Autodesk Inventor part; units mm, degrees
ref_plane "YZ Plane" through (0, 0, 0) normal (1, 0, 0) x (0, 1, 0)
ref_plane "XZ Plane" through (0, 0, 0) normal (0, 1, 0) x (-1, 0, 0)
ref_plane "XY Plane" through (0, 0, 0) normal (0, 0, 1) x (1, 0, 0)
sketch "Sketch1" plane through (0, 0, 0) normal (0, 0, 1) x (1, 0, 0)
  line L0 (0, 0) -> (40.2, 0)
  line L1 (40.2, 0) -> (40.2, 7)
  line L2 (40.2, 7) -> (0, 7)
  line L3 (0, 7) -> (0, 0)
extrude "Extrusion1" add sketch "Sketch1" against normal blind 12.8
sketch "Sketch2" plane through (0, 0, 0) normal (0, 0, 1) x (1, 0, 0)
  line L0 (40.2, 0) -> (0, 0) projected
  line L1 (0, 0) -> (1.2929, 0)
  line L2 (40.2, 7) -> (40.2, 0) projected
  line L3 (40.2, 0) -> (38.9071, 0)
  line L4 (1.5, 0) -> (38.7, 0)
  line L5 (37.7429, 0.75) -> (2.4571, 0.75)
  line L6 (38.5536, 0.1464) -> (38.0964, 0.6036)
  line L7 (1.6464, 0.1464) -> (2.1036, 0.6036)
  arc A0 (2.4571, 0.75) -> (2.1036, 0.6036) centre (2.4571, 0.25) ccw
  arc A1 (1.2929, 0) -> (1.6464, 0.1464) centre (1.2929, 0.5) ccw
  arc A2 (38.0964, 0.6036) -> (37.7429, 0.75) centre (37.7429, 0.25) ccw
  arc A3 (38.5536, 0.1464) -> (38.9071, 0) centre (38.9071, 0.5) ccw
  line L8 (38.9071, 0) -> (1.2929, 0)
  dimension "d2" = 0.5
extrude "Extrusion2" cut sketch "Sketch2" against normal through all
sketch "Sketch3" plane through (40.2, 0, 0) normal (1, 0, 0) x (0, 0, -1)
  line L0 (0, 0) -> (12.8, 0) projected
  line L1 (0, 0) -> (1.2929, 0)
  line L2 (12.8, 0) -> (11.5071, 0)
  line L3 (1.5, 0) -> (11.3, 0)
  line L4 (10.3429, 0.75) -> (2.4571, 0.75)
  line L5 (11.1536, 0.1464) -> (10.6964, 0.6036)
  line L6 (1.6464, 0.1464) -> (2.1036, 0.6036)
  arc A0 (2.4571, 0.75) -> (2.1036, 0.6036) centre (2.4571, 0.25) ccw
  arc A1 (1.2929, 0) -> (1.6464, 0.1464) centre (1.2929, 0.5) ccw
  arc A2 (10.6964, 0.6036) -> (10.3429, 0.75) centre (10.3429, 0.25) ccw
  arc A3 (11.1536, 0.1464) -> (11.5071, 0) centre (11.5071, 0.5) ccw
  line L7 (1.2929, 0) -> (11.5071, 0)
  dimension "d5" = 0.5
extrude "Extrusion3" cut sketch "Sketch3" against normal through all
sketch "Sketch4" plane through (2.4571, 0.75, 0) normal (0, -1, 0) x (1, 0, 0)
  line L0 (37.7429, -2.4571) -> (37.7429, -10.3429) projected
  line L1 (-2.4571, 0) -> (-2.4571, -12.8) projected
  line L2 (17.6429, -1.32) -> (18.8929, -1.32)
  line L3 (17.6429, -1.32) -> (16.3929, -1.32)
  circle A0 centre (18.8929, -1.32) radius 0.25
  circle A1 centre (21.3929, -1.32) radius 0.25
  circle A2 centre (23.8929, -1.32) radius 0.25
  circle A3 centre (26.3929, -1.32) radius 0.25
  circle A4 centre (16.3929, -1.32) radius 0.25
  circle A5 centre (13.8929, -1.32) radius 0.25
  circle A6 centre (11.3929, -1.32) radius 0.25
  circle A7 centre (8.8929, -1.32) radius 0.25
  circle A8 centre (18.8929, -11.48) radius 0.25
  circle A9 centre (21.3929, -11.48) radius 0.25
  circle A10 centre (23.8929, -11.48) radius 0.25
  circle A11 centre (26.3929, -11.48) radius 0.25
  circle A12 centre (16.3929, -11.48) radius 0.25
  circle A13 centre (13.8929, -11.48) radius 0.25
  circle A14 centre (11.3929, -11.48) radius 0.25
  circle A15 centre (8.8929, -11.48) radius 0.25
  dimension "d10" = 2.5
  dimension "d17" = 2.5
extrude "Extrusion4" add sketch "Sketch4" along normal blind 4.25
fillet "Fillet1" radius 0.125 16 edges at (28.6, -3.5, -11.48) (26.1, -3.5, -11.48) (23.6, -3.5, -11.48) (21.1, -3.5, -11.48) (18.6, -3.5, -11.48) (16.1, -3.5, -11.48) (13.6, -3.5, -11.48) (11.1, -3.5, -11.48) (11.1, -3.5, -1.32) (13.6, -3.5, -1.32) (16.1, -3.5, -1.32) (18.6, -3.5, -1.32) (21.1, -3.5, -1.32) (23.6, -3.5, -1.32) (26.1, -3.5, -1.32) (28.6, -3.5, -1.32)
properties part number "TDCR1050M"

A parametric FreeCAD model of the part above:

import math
import FreeCAD as App
import Part
import Sketcher
from FreeCAD import Vector
Q = App.Units.Quantity


def edges_at(feature, points):
    """Names of the edges that pass closest to the given points."""
    edges = feature.Shape.Edges
    near = lambda p: min(range(len(edges)), key=lambda i: edges[i].distToShape(Part.Vertex(*p))[0])
    return sorted({f"Edge{near(p) + 1}" for p in points})


def add_polygon(sketch, points):
    """Adds a closed chain of lines whose ends are joined by coincident constraints."""
    first, n = sketch.GeometryCount, len(points)
    for a, b in zip(points, points[1:] + points[:1]):
        sketch.addGeometry(Part.LineSegment(App.Vector(*a, 0), App.Vector(*b, 0)), False)
    for i in range(n):
        sketch.addConstraint(Sketcher.Constraint("Coincident", first + i, 2, first + (i + 1) % n, 1))

doc = App.newDocument("Part")
body = doc.addObject("PartDesign::Body", "Body")

sketch1 = body.newObject("Sketcher::SketchObject", "Sketch")
sketch1.AttachmentSupport = (doc.getObject("XY_Plane"), [""])
sketch1.MapMode = "FlatFace"
add_polygon(sketch1, [(0, 7), (0, 0), (40, 0), (40, 7)])
sketch1.addConstraint([
    Sketcher.Constraint("Vertical", 0),
    Sketcher.Constraint("Horizontal", 1),
    Sketcher.Constraint("Vertical", 2),
    Sketcher.Constraint("Horizontal", 3),
    Sketcher.Constraint("Coincident", 0, 2, -1, 1),
    Sketcher.Constraint("DistanceY", 0, 2, 0, 1, Q("7 mm")),
    Sketcher.Constraint("DistanceX", 1, 1, 1, 2, Q("40.2 mm")),
])
pad1 = body.newObject("PartDesign::Pad", "Pad")
pad1.Profile = sketch1
pad1.Length = 12.8
pad1.Reversed = True

sketch2 = body.newObject("Sketcher::SketchObject", "Sketch001")
sketch2.AttachmentSupport = (doc.getObject("XY_Plane"), [""])
sketch2.MapMode = "FlatFace"
sketch2.addGeometry([
    Part.LineSegment(Vector(1.29, 0, 0), Vector(38.91, 0, 0)),
    Part.ArcOfCircle(Part.Circle(Vector(38.91, 0.5, 0), Vector(0, 0, 1), 0.5), math.radians(-135), math.radians(-90)),
    Part.LineSegment(Vector(38.55, 0.15, 0), Vector(38.1, 0.6, 0)),
    Part.ArcOfCircle(Part.Circle(Vector(37.74, 0.25, 0), Vector(0, 0, 1), 0.5), math.radians(45), math.radians(90)),
    Part.LineSegment(Vector(37.74, 0.75, 0), Vector(2.46, 0.75, 0)),
    Part.ArcOfCircle(Part.Circle(Vector(2.46, 0.25, 0), Vector(0, 0, 1), 0.5), math.radians(90), math.radians(135)),
    Part.LineSegment(Vector(2.1, 0.6, 0), Vector(1.65, 0.15, 0)),
    Part.ArcOfCircle(Part.Circle(Vector(1.29, 0.5, 0), Vector(0, 0, 1), 0.5), math.radians(-90), math.radians(-45)),
], False)
sketch2.addConstraint([
    Sketcher.Constraint("Tangent", 0, 2, 1, 2),
    Sketcher.Constraint("Tangent", 1, 1, 2, 1),
    Sketcher.Constraint("Tangent", 2, 2, 3, 1),
    Sketcher.Constraint("Tangent", 3, 2, 4, 1),
    Sketcher.Constraint("Tangent", 4, 2, 5, 1),
    Sketcher.Constraint("Tangent", 5, 2, 6, 1),
    Sketcher.Constraint("Tangent", 6, 2, 7, 2),
    Sketcher.Constraint("Tangent", 7, 1, 0, 1),
    Sketcher.Constraint("Horizontal", 0),
    Sketcher.Constraint("Horizontal", 4),
    Sketcher.Constraint("Equal", 1, 3),
    Sketcher.Constraint("Equal", 3, 5),
    Sketcher.Constraint("Equal", 5, 7),
    Sketcher.Constraint("PointOnObject", 0, 2, -1),
    Sketcher.Constraint("Perpendicular", 2, 6),
    Sketcher.Constraint("Horizontal", 2, 2, 5, 2),
    Sketcher.Constraint("Radius", 1, Q("0.5 mm")),
    Sketcher.Constraint("DistanceY", -1, 1, 3, 3, Q("0.25 mm")),
    Sketcher.Constraint("DistanceX", 5, 3, 1, 3, Q("36.45 mm")),
    Sketcher.Constraint("DistanceX", -1, 1, 1, 3, Q("38.907 mm")),
])
pocket1 = body.newObject("PartDesign::Pocket", "Pocket")
pocket1.Profile = sketch2
pocket1.Type = "ThroughAll"

sketch3 = body.newObject("Sketcher::SketchObject", "Sketch002")
sketch3.AttachmentSupport = (doc.getObject("YZ_Plane"), [""])
sketch3.MapMode = "FlatFace"
sketch3.AttachmentOffset = App.Placement(Vector(0, 0, 40.2), App.Rotation())
sketch3.addGeometry([
    Part.ArcOfCircle(Part.Circle(Vector(0.5, -1.29, 0), Vector(0, 0, 1), 0.5), math.radians(180), math.radians(225)),
    Part.LineSegment(Vector(0, -1.29, 0), Vector(0, -11.51, 0)),
    Part.ArcOfCircle(Part.Circle(Vector(0.5, -11.51, 0), Vector(0, 0, 1), 0.5), math.radians(135), math.radians(180)),
    Part.LineSegment(Vector(0.15, -11.15, 0), Vector(0.6, -10.7, 0)),
    Part.ArcOfCircle(Part.Circle(Vector(0.25, -10.34, 0), Vector(0, 0, 1), 0.5), math.radians(-45), math.radians(0)),
    Part.LineSegment(Vector(0.75, -10.34, 0), Vector(0.75, -2.46, 0)),
    Part.ArcOfCircle(Part.Circle(Vector(0.25, -2.46, 0), Vector(0, 0, 1), 0.5), math.radians(0), math.radians(45)),
    Part.LineSegment(Vector(0.6, -2.1, 0), Vector(0.15, -1.65, 0)),
], False)
sketch3.addConstraint([
    Sketcher.Constraint("Tangent", 0, 1, 1, 1),
    Sketcher.Constraint("Tangent", 1, 2, 2, 2),
    Sketcher.Constraint("Tangent", 2, 1, 3, 1),
    Sketcher.Constraint("Tangent", 3, 2, 4, 1),
    Sketcher.Constraint("Tangent", 4, 2, 5, 1),
    Sketcher.Constraint("Tangent", 5, 2, 6, 1),
    Sketcher.Constraint("Tangent", 6, 2, 7, 1),
    Sketcher.Constraint("Tangent", 7, 2, 0, 2),
    Sketcher.Constraint("Vertical", 1),
    Sketcher.Constraint("Vertical", 5),
    Sketcher.Constraint("Equal", 0, 2),
    Sketcher.Constraint("Equal", 2, 4),
    Sketcher.Constraint("Equal", 4, 6),
    Sketcher.Constraint("PointOnObject", 0, 1, -2),
    Sketcher.Constraint("Perpendicular", 3, 7),
    Sketcher.Constraint("Vertical", 3, 2, 6, 2),
    Sketcher.Constraint("Radius", 0, Q("0.5 mm")),
    Sketcher.Constraint("DistanceX", -1, 1, 4, 3, Q("0.25 mm")),
    Sketcher.Constraint("DistanceY", 4, 3, 0, 3, Q("9.05 mm")),
    Sketcher.Constraint("DistanceY", 0, 3, -1, 1, Q("1.293 mm")),
])
pocket2 = body.newObject("PartDesign::Pocket", "Pocket001")
pocket2.Profile = sketch3
pocket2.Type = "ThroughAll"

sketch4 = body.newObject("Sketcher::SketchObject", "Sketch003")
sketch4.AttachmentSupport = (doc.getObject("XZ_Plane"), [""])
sketch4.MapMode = "FlatFace"
sketch4.AttachmentOffset = App.Placement(Vector(0, 0, -0.75), App.Rotation())
sketch4.addGeometry([
    Part.Circle(Vector(21.35, -1.32, 0), Vector(0, 0, 1), 0.25),
    Part.Circle(Vector(18.85, -1.32, 0), Vector(0, 0, 1), 0.25),
    Part.Circle(Vector(23.85, -1.32, 0), Vector(0, 0, 1), 0.25),
    Part.Circle(Vector(26.35, -1.32, 0), Vector(0, 0, 1), 0.25),
    Part.Circle(Vector(28.85, -1.32, 0), Vector(0, 0, 1), 0.25),
    Part.Circle(Vector(16.35, -1.32, 0), Vector(0, 0, 1), 0.25),
    Part.Circle(Vector(13.85, -1.32, 0), Vector(0, 0, 1), 0.25),
    Part.Circle(Vector(11.35, -1.32, 0), Vector(0, 0, 1), 0.25),
    Part.Circle(Vector(21.35, -11.48, 0), Vector(0, 0, 1), 0.25),
    Part.Circle(Vector(23.85, -11.48, 0), Vector(0, 0, 1), 0.25),
    Part.Circle(Vector(26.35, -11.48, 0), Vector(0, 0, 1), 0.25),
    Part.Circle(Vector(28.85, -11.48, 0), Vector(0, 0, 1), 0.25),
    Part.Circle(Vector(18.85, -11.48, 0), Vector(0, 0, 1), 0.25),
    Part.Circle(Vector(16.35, -11.48, 0), Vector(0, 0, 1), 0.25),
    Part.Circle(Vector(13.85, -11.48, 0), Vector(0, 0, 1), 0.25),
    Part.Circle(Vector(11.35, -11.48, 0), Vector(0, 0, 1), 0.25),
], False)
sketch4.addConstraint([
    Sketcher.Constraint("Equal", 0, 1),
    Sketcher.Constraint("Equal", 1, 2),
    Sketcher.Constraint("Equal", 2, 3),
    Sketcher.Constraint("Equal", 3, 4),
    Sketcher.Constraint("Equal", 4, 5),
    Sketcher.Constraint("Equal", 5, 6),
    Sketcher.Constraint("Equal", 6, 7),
    Sketcher.Constraint("Equal", 7, 8),
    Sketcher.Constraint("Equal", 8, 9),
    Sketcher.Constraint("Equal", 9, 10),
    Sketcher.Constraint("Equal", 10, 11),
    Sketcher.Constraint("Equal", 11, 12),
    Sketcher.Constraint("Equal", 12, 13),
    Sketcher.Constraint("Equal", 13, 14),
    Sketcher.Constraint("Equal", 14, 15),
    Sketcher.Constraint("Horizontal", 0, 3, 1, 3),
    Sketcher.Constraint("Horizontal", 1, 3, 2, 3),
    Sketcher.Constraint("Horizontal", 2, 3, 3, 3),
    Sketcher.Constraint("Horizontal", 3, 3, 4, 3),
    Sketcher.Constraint("Horizontal", 4, 3, 5, 3),
    Sketcher.Constraint("Horizontal", 5, 3, 6, 3),
    Sketcher.Constraint("Horizontal", 6, 3, 7, 3),
    Sketcher.Constraint("Horizontal", 8, 3, 9, 3),
    Sketcher.Constraint("Horizontal", 9, 3, 10, 3),
    Sketcher.Constraint("Horizontal", 10, 3, 11, 3),
    Sketcher.Constraint("Horizontal", 11, 3, 12, 3),
    Sketcher.Constraint("Horizontal", 12, 3, 13, 3),
    Sketcher.Constraint("Horizontal", 13, 3, 14, 3),
    Sketcher.Constraint("Horizontal", 14, 3, 15, 3),
    Sketcher.Constraint("Vertical", 0, 3, 8, 3),
    Sketcher.Constraint("Vertical", 2, 3, 9, 3),
    Sketcher.Constraint("Vertical", 3, 3, 10, 3),
    Sketcher.Constraint("Vertical", 4, 3, 11, 3),
    Sketcher.Constraint("Vertical", 1, 3, 12, 3),
    Sketcher.Constraint("Vertical", 5, 3, 13, 3),
    Sketcher.Constraint("Vertical", 6, 3, 14, 3),
    Sketcher.Constraint("Vertical", 7, 3, 15, 3),
    Sketcher.Constraint("DistanceX", 1, 3, 4, 3, Q("10 mm")),
    Sketcher.Constraint("DistanceX", 5, 3, 3, 3, Q("10 mm")),
    Sketcher.Constraint("DistanceX", 6, 3, 2, 3, Q("10 mm")),
    Sketcher.Constraint("DistanceX", 7, 3, 0, 3, Q("10 mm")),
    Sketcher.Constraint("Diameter", 0, Q("0.5 mm")),
    Sketcher.Constraint("DistanceX", 1, 3, 0, 3, Q("2.5 mm")),
    Sketcher.Constraint("DistanceX", 0, 3, 2, 3, Q("2.5 mm")),
    Sketcher.Constraint("DistanceX", 2, 3, 3, 3, Q("2.5 mm")),
    Sketcher.Constraint("DistanceX", -1, 1, 0, 3, Q("21.35 mm")),
    Sketcher.Constraint("DistanceY", 0, 3, -1, 1, Q("1.32 mm")),
    Sketcher.Constraint("DistanceY", 8, 3, -1, 1, Q("11.48 mm")),
])
pad2 = body.newObject("PartDesign::Pad", "Pad001")
pad2.Profile = sketch4
pad2.Length = 4.25
doc.recompute()

fillet = body.newObject("PartDesign::Fillet", "Fillet")
fillet.Base = (pad2, edges_at(pad2, [
    (28.6, -3.5, -11.48),
    (26.1, -3.5, -11.48),
    (23.6, -3.5, -11.48),
    (21.1, -3.5, -11.48),
    (18.6, -3.5, -11.48),
    (16.1, -3.5, -11.48),
    (13.6, -3.5, -11.48),
    (11.1, -3.5, -11.48),
    (11.1, -3.5, -1.32),
    (13.6, -3.5, -1.32),
    (16.1, -3.5, -1.32),
    (18.6, -3.5, -1.32),
    (21.1, -3.5, -1.32),
    (23.6, -3.5, -1.32),
    (26.1, -3.5, -1.32),
    (28.6, -3.5, -1.32),
]))
fillet.Radius = 0.125

doc.recompute()
